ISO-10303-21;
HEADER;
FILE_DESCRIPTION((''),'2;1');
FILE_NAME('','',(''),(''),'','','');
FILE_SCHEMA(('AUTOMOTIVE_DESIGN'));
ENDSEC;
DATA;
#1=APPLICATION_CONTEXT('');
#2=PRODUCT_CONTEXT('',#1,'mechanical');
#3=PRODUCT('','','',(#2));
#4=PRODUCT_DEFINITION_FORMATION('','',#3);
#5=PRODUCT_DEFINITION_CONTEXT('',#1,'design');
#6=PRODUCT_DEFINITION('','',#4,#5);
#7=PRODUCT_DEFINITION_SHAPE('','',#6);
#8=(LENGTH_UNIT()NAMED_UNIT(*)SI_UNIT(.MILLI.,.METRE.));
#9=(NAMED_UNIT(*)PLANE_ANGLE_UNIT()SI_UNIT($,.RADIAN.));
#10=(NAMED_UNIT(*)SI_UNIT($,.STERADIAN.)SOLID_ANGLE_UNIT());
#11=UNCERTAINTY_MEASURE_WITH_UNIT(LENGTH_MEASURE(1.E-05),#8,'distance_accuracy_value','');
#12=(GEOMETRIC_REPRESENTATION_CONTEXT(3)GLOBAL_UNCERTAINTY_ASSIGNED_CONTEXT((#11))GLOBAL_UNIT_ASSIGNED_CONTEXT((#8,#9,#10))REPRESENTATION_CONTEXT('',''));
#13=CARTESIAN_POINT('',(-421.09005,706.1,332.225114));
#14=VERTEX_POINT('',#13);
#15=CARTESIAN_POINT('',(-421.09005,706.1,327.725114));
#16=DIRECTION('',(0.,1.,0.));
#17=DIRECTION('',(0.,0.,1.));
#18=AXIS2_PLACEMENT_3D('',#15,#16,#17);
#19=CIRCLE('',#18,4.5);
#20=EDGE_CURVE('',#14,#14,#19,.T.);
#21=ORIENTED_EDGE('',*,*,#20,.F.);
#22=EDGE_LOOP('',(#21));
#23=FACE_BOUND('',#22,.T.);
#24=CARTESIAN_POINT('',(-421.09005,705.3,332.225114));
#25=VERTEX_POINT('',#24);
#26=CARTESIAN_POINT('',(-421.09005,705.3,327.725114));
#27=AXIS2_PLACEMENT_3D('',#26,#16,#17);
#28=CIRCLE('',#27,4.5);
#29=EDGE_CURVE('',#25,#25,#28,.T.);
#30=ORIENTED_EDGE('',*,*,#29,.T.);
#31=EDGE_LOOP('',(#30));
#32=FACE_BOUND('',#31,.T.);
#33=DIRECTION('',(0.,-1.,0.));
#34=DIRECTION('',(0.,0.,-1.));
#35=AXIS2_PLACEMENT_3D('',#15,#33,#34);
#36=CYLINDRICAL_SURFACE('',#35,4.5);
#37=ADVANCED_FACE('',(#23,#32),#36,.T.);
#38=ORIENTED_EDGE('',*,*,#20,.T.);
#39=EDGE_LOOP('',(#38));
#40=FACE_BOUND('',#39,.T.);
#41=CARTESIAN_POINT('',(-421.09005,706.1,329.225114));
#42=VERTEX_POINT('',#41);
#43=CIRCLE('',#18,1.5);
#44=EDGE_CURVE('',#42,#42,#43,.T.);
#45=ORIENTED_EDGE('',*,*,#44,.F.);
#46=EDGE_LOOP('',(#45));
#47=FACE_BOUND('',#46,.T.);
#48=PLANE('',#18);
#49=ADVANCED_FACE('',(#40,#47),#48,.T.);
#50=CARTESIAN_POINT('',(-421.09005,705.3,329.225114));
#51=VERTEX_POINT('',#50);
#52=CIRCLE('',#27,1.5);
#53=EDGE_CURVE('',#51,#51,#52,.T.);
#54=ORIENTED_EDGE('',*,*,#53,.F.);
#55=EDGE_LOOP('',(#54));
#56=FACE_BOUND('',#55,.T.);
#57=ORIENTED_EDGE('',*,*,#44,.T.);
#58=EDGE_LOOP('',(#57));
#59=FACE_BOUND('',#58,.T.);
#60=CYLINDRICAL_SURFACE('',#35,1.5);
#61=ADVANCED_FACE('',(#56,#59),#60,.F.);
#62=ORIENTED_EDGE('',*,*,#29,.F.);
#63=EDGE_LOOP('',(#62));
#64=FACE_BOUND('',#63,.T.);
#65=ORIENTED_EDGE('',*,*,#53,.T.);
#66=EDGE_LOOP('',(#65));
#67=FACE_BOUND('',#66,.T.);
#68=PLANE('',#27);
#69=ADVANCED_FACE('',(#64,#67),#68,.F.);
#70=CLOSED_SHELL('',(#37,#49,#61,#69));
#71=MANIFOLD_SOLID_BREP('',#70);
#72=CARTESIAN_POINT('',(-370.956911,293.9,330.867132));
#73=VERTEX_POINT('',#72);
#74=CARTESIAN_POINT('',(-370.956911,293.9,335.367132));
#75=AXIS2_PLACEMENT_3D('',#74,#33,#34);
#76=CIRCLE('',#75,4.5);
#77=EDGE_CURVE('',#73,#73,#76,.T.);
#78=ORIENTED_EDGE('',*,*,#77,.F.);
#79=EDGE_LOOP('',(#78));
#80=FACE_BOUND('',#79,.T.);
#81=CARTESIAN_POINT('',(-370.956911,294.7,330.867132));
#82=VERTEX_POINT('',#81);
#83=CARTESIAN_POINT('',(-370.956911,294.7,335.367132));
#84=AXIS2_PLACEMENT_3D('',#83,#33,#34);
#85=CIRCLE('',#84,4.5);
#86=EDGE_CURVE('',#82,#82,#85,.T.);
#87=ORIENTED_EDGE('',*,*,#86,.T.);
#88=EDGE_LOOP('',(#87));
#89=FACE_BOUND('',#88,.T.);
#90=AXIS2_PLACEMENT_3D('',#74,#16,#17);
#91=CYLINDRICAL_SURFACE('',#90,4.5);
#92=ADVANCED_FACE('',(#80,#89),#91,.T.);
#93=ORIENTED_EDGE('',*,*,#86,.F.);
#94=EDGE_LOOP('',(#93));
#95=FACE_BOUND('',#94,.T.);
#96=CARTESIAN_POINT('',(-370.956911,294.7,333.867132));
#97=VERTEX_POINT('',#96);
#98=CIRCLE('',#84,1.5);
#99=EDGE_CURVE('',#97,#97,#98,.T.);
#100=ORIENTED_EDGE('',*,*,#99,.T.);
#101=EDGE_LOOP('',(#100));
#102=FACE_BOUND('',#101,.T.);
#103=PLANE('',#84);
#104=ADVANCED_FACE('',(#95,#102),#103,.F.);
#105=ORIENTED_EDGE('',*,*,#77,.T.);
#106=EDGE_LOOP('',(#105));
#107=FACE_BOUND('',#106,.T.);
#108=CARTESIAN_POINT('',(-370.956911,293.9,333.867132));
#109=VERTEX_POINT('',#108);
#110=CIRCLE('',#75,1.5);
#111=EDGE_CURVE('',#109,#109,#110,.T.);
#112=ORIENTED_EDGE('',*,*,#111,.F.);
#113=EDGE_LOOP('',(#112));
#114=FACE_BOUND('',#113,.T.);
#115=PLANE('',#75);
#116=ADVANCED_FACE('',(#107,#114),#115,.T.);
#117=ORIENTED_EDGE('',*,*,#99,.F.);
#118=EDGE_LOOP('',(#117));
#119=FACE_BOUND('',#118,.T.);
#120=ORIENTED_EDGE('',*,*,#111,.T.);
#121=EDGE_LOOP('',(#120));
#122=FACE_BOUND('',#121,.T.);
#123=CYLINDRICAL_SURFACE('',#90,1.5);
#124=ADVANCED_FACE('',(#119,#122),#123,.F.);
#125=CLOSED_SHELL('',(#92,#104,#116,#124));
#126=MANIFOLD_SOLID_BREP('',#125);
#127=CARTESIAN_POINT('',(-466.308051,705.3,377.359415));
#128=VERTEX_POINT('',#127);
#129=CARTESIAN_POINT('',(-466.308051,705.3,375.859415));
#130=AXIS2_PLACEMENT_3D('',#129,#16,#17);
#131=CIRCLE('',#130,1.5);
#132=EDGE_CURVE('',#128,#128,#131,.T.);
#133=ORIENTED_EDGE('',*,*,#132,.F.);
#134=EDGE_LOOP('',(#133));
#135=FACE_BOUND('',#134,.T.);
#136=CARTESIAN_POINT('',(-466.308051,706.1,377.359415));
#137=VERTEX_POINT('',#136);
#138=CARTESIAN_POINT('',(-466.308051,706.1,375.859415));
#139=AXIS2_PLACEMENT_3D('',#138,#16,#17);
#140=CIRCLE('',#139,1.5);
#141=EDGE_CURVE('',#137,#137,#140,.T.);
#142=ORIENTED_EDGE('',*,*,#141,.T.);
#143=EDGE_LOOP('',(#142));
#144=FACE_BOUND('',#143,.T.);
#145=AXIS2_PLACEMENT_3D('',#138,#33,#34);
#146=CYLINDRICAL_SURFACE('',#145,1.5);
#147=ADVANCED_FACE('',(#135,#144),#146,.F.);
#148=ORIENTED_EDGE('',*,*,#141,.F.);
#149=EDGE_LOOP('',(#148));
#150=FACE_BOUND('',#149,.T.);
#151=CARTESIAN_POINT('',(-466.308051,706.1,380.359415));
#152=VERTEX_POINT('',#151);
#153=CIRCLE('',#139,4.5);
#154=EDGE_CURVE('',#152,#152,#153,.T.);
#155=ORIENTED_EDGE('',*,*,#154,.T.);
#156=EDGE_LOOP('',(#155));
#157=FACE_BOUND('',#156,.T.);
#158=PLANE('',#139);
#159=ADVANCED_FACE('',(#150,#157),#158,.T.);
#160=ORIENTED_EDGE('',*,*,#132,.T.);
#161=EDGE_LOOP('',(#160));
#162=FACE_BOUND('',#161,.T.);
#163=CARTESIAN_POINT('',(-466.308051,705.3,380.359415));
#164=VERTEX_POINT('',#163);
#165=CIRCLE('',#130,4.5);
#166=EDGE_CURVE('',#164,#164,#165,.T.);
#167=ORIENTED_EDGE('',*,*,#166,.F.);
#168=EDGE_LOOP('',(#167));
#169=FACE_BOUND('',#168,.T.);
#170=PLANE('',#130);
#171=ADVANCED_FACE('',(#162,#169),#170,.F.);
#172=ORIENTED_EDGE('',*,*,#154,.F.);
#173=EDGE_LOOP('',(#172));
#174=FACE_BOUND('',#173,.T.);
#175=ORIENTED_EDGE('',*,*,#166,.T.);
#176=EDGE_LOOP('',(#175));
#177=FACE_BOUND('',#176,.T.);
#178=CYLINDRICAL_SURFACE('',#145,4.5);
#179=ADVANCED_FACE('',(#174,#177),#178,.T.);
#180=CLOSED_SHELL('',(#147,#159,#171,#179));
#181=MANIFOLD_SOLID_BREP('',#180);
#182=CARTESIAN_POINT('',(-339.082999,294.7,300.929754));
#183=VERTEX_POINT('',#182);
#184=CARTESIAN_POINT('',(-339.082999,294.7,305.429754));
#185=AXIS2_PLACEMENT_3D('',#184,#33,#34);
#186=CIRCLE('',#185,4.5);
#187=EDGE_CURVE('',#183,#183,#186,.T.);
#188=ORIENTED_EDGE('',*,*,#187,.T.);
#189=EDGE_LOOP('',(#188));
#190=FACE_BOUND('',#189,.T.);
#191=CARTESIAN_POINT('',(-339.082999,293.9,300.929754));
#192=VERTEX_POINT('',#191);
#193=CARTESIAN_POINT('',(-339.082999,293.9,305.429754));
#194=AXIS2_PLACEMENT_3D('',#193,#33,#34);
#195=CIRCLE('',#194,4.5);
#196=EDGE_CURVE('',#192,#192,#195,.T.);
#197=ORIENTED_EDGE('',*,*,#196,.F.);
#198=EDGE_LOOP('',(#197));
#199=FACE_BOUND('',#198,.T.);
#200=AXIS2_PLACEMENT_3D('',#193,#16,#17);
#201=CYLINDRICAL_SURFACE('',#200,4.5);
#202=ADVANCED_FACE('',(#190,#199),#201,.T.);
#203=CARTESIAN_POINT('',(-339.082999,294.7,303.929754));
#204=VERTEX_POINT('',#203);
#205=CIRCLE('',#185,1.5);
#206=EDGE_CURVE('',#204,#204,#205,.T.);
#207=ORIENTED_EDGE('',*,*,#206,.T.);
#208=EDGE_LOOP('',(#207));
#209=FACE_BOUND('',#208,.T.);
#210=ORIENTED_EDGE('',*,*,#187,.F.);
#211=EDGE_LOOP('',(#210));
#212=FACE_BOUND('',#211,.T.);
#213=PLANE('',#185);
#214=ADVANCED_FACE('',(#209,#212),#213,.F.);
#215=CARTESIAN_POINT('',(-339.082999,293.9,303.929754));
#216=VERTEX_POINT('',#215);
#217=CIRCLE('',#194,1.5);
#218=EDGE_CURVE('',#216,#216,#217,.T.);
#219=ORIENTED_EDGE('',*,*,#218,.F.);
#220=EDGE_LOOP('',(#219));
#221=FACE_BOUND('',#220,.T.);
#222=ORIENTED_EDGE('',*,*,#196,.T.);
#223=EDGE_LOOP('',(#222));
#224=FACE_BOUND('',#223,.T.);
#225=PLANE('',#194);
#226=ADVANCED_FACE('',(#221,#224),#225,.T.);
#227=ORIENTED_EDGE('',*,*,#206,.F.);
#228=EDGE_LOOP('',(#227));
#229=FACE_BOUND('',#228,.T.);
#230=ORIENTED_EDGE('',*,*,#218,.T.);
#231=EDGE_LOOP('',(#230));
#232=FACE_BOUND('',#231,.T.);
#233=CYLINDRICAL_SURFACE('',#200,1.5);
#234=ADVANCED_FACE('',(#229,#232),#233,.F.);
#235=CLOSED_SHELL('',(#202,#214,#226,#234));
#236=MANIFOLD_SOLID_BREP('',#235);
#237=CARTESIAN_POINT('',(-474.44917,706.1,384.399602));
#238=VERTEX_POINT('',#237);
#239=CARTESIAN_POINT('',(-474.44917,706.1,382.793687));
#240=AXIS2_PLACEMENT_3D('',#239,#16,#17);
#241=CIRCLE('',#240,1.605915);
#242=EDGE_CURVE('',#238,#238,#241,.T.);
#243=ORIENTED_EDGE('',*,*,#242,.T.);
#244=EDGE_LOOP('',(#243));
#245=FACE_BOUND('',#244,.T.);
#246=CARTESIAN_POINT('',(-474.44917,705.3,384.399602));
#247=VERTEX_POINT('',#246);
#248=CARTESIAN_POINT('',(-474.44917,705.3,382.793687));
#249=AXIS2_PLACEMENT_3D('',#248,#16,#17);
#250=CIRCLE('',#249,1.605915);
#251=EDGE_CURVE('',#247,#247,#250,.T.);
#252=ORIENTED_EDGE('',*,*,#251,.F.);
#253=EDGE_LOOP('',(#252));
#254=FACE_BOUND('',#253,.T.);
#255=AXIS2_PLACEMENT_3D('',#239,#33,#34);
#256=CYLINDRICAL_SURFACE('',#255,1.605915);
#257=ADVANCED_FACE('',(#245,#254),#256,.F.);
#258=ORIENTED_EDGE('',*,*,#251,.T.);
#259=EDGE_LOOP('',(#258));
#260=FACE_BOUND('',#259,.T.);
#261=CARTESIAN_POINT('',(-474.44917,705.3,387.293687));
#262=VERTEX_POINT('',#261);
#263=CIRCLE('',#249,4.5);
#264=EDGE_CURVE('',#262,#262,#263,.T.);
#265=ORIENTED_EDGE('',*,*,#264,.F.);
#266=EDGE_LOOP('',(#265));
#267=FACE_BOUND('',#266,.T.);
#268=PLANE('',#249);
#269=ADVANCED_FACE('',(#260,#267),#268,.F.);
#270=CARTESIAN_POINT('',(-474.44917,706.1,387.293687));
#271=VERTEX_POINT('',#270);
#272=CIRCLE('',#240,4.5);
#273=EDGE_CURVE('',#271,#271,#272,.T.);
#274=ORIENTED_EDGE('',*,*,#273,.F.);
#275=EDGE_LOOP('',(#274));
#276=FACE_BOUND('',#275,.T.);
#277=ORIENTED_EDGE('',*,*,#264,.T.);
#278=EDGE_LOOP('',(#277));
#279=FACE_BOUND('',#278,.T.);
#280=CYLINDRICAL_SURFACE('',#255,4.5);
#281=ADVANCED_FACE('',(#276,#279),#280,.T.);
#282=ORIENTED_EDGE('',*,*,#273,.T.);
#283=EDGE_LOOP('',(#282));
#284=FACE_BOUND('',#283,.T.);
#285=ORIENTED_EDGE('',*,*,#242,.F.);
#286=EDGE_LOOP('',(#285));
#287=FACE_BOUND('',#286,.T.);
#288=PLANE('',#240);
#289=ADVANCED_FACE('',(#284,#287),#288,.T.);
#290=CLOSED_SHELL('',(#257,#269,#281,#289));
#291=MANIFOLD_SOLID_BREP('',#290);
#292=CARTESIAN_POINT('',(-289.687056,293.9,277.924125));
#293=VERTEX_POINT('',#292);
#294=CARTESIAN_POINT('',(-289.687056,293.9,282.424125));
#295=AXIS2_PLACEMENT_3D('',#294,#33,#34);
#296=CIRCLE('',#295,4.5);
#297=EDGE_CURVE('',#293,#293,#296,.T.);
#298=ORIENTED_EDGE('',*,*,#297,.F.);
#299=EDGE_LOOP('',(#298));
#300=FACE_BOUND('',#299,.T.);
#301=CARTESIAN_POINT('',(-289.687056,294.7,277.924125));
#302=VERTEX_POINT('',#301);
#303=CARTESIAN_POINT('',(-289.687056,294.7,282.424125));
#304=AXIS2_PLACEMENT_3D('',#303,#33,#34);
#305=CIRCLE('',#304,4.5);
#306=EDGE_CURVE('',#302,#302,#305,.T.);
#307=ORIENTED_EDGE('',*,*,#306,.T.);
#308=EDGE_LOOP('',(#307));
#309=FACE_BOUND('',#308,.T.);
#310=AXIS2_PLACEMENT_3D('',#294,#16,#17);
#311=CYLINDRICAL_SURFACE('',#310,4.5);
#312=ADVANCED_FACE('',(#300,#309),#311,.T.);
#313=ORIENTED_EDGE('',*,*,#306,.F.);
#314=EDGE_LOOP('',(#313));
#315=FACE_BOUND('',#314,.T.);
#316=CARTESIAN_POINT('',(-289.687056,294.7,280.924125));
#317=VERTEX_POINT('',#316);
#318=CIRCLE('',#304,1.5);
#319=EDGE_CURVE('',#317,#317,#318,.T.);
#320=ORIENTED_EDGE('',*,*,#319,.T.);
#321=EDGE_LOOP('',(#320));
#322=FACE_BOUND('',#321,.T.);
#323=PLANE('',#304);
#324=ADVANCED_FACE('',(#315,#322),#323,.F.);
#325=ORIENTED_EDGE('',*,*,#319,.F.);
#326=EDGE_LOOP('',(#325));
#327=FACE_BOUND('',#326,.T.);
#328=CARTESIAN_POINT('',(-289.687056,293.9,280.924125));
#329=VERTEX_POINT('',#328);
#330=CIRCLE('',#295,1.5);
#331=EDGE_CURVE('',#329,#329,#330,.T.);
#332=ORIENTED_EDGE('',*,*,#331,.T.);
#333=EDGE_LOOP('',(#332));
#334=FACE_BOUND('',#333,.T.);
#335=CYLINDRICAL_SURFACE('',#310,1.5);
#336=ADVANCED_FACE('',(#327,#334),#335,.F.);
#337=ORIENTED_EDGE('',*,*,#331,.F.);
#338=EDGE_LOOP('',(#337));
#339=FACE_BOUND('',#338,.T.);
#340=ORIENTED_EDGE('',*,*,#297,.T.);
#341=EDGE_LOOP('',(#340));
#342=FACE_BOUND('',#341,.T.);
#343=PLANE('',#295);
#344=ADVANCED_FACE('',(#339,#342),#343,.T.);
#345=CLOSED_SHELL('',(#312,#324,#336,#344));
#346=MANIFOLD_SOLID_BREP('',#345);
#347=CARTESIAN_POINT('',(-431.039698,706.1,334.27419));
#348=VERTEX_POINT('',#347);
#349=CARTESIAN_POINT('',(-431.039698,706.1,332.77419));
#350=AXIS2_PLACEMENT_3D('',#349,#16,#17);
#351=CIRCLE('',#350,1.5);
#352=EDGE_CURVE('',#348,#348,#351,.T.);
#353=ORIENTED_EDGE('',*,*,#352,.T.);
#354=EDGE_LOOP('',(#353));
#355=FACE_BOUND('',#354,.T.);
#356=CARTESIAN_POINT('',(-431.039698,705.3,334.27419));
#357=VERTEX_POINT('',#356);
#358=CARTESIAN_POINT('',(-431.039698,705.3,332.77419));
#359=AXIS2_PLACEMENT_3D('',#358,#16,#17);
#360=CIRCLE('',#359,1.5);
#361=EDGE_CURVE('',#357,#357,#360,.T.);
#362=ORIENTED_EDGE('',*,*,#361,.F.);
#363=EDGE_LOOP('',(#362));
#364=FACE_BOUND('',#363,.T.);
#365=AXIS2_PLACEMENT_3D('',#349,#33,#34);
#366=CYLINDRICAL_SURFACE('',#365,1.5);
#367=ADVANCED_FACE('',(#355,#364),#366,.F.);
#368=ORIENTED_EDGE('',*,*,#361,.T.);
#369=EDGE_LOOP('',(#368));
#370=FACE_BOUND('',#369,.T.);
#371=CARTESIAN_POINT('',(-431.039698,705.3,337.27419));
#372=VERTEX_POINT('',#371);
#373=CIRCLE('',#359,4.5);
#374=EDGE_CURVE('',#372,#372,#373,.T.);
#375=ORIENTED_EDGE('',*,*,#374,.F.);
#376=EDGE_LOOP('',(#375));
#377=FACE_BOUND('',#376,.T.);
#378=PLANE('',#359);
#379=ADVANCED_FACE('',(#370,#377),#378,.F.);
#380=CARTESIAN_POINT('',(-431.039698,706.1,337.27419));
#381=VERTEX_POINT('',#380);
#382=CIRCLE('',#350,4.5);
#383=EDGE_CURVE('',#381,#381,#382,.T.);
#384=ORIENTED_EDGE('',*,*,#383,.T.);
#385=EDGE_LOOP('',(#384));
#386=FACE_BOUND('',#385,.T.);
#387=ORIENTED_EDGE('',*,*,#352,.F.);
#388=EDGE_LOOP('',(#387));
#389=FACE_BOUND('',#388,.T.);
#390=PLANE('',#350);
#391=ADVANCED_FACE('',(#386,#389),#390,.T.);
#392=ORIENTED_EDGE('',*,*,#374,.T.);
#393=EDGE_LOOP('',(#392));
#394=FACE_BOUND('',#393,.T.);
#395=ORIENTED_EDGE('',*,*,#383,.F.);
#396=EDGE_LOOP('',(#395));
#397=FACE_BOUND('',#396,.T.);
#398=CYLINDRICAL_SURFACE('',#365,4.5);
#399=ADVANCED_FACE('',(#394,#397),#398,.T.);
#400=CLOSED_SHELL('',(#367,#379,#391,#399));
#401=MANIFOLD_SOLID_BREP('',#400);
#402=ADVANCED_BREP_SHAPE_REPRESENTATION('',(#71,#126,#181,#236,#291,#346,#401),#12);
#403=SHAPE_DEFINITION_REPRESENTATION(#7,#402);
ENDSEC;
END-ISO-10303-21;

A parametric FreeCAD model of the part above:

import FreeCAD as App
import Part
import Sketcher
from FreeCAD import Vector

doc = App.newDocument("Part")
params = doc.addObject("Spreadsheet::Sheet", "Params")
for row, (alias, value) in enumerate([
    ("sketch1_diameter", "9 mm"),
    ("sketch1_diameter2", "3 mm"),
    ("pad1_length", "0.8 mm"),
    ("sketch2_diameter", "9 mm"),
    ("sketch2_diameter2", "3 mm"),
    ("pad2_length", "0.8 mm"),
    ("sketch3_diameter", "9 mm"),
    ("sketch3_diameter2", "3 mm"),
    ("pad3_length", "0.8 mm"),
    ("sketch4_diameter", "9 mm"),
    ("pad4_length", "0.8 mm"),
    ("sketch5_diameter", "9 mm"),
    ("sketch5_diameter2", "3 mm"),
    ("pad5_length", "0.8 mm"),
    ("sketch6_diameter", "9 mm"),
    ("sketch6_diameter2", "3 mm"),
    ("pad6_length", "0.8 mm"),
    ("sketch7_diameter", "9 mm"),
    ("sketch7_diameter2", "3 mm"),
    ("pad7_length", "0.8 mm"),
], start=1):
    params.set(f"A{row}", alias)
    params.set(f"B{row}", "=" + value)
    params.setAlias(f"B{row}", alias)

body = doc.addObject("PartDesign::Body", "Body")

# Sketch on XZ plane
sketch1 = body.newObject("Sketcher::SketchObject", "Sketch")
sketch1.AttachmentSupport = (doc.getObject("XZ_Plane"), [""])
sketch1.MapMode = "FlatFace"
sketch1.AttachmentOffset = App.Placement(Vector(0, 0, -705.3), App.Rotation())
sketch1.addGeometry(Part.Circle(Vector(-421.1, 327.7, 0), Vector(0, 0, 1), 4.5), False)
sketch1.addGeometry(Part.Circle(Vector(-421.1, 327.7, 0), Vector(0, 0, 1), 1.5), False)
sketch1.addConstraint(Sketcher.Constraint("Coincident", 1, 3, 0, 3))
sketch1.addConstraint(Sketcher.Constraint("Diameter", 0, 9.0))
sketch1.addConstraint(Sketcher.Constraint("Diameter", 1, 3.0))
sketch1.addConstraint(Sketcher.Constraint("DistanceX", 0, 3, -1, 1, 421.09005))
sketch1.addConstraint(Sketcher.Constraint("DistanceY", -1, 1, 0, 3, 327.725114))
sketch1.setExpression("Constraints[1]", "Params.sketch1_diameter")
sketch1.setExpression("Constraints[2]", "Params.sketch1_diameter2")
pad1 = body.newObject("PartDesign::Pad", "Pad")
pad1.Profile = sketch1
pad1.setExpression("Length", "Params.pad1_length")
pad1.Reversed = True
body2 = doc.addObject("PartDesign::Body", "Body001")

# Sketch on XZ plane
sketch2 = body2.newObject("Sketcher::SketchObject", "Sketch001")
sketch2.AttachmentSupport = (doc.getObject("XZ_Plane001"), [""])
sketch2.MapMode = "FlatFace"
sketch2.AttachmentOffset = App.Placement(Vector(0, 0, -705.3), App.Rotation())
sketch2.addGeometry(Part.Circle(Vector(-431, 332.8, 0), Vector(0, 0, 1), 4.5), False)
sketch2.addGeometry(Part.Circle(Vector(-431, 332.8, 0), Vector(0, 0, 1), 1.5), False)
sketch2.addConstraint(Sketcher.Constraint("Coincident", 1, 3, 0, 3))
sketch2.addConstraint(Sketcher.Constraint("Diameter", 0, 9.0))
sketch2.addConstraint(Sketcher.Constraint("Diameter", 1, 3.0))
sketch2.addConstraint(Sketcher.Constraint("DistanceX", 0, 3, -1, 1, 431.039698))
sketch2.addConstraint(Sketcher.Constraint("DistanceY", -1, 1, 0, 3, 332.77419))
sketch2.setExpression("Constraints[1]", "Params.sketch2_diameter")
sketch2.setExpression("Constraints[2]", "Params.sketch2_diameter2")
pad2 = body2.newObject("PartDesign::Pad", "Pad001")
pad2.Profile = sketch2
pad2.setExpression("Length", "Params.pad2_length")
pad2.Reversed = True
body3 = doc.addObject("PartDesign::Body", "Body002")

# Sketch on XZ plane
sketch3 = body3.newObject("Sketcher::SketchObject", "Sketch002")
sketch3.AttachmentSupport = (doc.getObject("XZ_Plane002"), [""])
sketch3.MapMode = "FlatFace"
sketch3.AttachmentOffset = App.Placement(Vector(0, 0, -705.3), App.Rotation())
sketch3.addGeometry(Part.Circle(Vector(-466.3, 375.9, 0), Vector(0, 0, 1), 4.5), False)
sketch3.addGeometry(Part.Circle(Vector(-466.3, 375.9, 0), Vector(0, 0, 1), 1.5), False)
sketch3.addConstraint(Sketcher.Constraint("Coincident", 1, 3, 0, 3))
sketch3.addConstraint(Sketcher.Constraint("Diameter", 0, 9.0))
sketch3.addConstraint(Sketcher.Constraint("Diameter", 1, 3.0))
sketch3.addConstraint(Sketcher.Constraint("DistanceX", 0, 3, -1, 1, 466.308051))
sketch3.addConstraint(Sketcher.Constraint("DistanceY", -1, 1, 0, 3, 375.859415))
sketch3.setExpression("Constraints[1]", "Params.sketch3_diameter")
sketch3.setExpression("Constraints[2]", "Params.sketch3_diameter2")
pad3 = body3.newObject("PartDesign::Pad", "Pad002")
pad3.Profile = sketch3
pad3.setExpression("Length", "Params.pad3_length")
pad3.Reversed = True
body4 = doc.addObject("PartDesign::Body", "Body003")

# Sketch on XZ plane
sketch4 = body4.newObject("Sketcher::SketchObject", "Sketch003")
sketch4.AttachmentSupport = (doc.getObject("XZ_Plane003"), [""])
sketch4.MapMode = "FlatFace"
sketch4.AttachmentOffset = App.Placement(Vector(0, 0, -705.3), App.Rotation())
sketch4.addGeometry(Part.Circle(Vector(-474.4, 382.8, 0), Vector(0, 0, 1), 4.5), False)
sketch4.addGeometry(Part.Circle(Vector(-474.4, 382.8, 0), Vector(0, 0, 1), 1.6), False)
sketch4.addConstraint(Sketcher.Constraint("Coincident", 1, 3, 0, 3))
sketch4.addConstraint(Sketcher.Constraint("Diameter", 0, 9.0))
sketch4.addConstraint(Sketcher.Constraint("Diameter", 1, 3.211829))
sketch4.addConstraint(Sketcher.Constraint("DistanceX", 0, 3, -1, 1, 474.44917))
sketch4.addConstraint(Sketcher.Constraint("DistanceY", -1, 1, 0, 3, 382.793687))
sketch4.setExpression("Constraints[1]", "Params.sketch4_diameter")
pad4 = body4.newObject("PartDesign::Pad", "Pad003")
pad4.Profile = sketch4
pad4.setExpression("Length", "Params.pad4_length")
pad4.Reversed = True
body5 = doc.addObject("PartDesign::Body", "Body004")

# Sketch on XZ plane
sketch5 = body5.newObject("Sketcher::SketchObject", "Sketch004")
sketch5.AttachmentSupport = (doc.getObject("XZ_Plane004"), [""])
sketch5.MapMode = "FlatFace"
sketch5.AttachmentOffset = App.Placement(Vector(0, 0, -294.7), App.Rotation())
sketch5.addGeometry(Part.Circle(Vector(-371, 335.4, 0), Vector(0, 0, 1), 4.5), False)
sketch5.addGeometry(Part.Circle(Vector(-371, 335.4, 0), Vector(0, 0, 1), 1.5), False)
sketch5.addConstraint(Sketcher.Constraint("Coincident", 1, 3, 0, 3))
sketch5.addConstraint(Sketcher.Constraint("Diameter", 0, 9.0))
sketch5.addConstraint(Sketcher.Constraint("Diameter", 1, 3.0))
sketch5.addConstraint(Sketcher.Constraint("DistanceX", 0, 3, -1, 1, 370.956911))
sketch5.addConstraint(Sketcher.Constraint("DistanceY", -1, 1, 0, 3, 335.367132))
sketch5.setExpression("Constraints[1]", "Params.sketch5_diameter")
sketch5.setExpression("Constraints[2]", "Params.sketch5_diameter2")
pad5 = body5.newObject("PartDesign::Pad", "Pad004")
pad5.Profile = sketch5
pad5.setExpression("Length", "Params.pad5_length")
body6 = doc.addObject("PartDesign::Body", "Body005")

# Sketch on XZ plane
sketch6 = body6.newObject("Sketcher::SketchObject", "Sketch005")
sketch6.AttachmentSupport = (doc.getObject("XZ_Plane005"), [""])
sketch6.MapMode = "FlatFace"
sketch6.AttachmentOffset = App.Placement(Vector(0, 0, -294.7), App.Rotation())
sketch6.addGeometry(Part.Circle(Vector(-339.1, 305.4, 0), Vector(0, 0, 1), 4.5), False)
sketch6.addGeometry(Part.Circle(Vector(-339.1, 305.4, 0), Vector(0, 0, 1), 1.5), False)
sketch6.addConstraint(Sketcher.Constraint("Coincident", 1, 3, 0, 3))
sketch6.addConstraint(Sketcher.Constraint("Diameter", 0, 9.0))
sketch6.addConstraint(Sketcher.Constraint("Diameter", 1, 3.0))
sketch6.addConstraint(Sketcher.Constraint("DistanceX", 0, 3, -1, 1, 339.082999))
sketch6.addConstraint(Sketcher.Constraint("DistanceY", -1, 1, 0, 3, 305.429754))
sketch6.setExpression("Constraints[1]", "Params.sketch6_diameter")
sketch6.setExpression("Constraints[2]", "Params.sketch6_diameter2")
pad6 = body6.newObject("PartDesign::Pad", "Pad005")
pad6.Profile = sketch6
pad6.setExpression("Length", "Params.pad6_length")
body7 = doc.addObject("PartDesign::Body", "Body006")

# Sketch on XZ plane
sketch7 = body7.newObject("Sketcher::SketchObject", "Sketch006")
sketch7.AttachmentSupport = (doc.getObject("XZ_Plane006"), [""])
sketch7.MapMode = "FlatFace"
sketch7.AttachmentOffset = App.Placement(Vector(0, 0, -294.7), App.Rotation())
sketch7.addGeometry(Part.Circle(Vector(-289.7, 282.4, 0), Vector(0, 0, 1), 4.5), False)
sketch7.addGeometry(Part.Circle(Vector(-289.7, 282.4, 0), Vector(0, 0, 1), 1.5), False)
sketch7.addConstraint(Sketcher.Constraint("Coincident", 1, 3, 0, 3))
sketch7.addConstraint(Sketcher.Constraint("Diameter", 0, 9.0))
sketch7.addConstraint(Sketcher.Constraint("Diameter", 1, 3.0))
sketch7.addConstraint(Sketcher.Constraint("DistanceX", 0, 3, -1, 1, 289.687056))
sketch7.addConstraint(Sketcher.Constraint("DistanceY", -1, 1, 0, 3, 282.424125))
sketch7.setExpression("Constraints[1]", "Params.sketch7_diameter")
sketch7.setExpression("Constraints[2]", "Params.sketch7_diameter2")
pad7 = body7.newObject("PartDesign::Pad", "Pad006")
pad7.Profile = sketch7
pad7.setExpression("Length", "Params.pad7_length")

doc.recompute()
